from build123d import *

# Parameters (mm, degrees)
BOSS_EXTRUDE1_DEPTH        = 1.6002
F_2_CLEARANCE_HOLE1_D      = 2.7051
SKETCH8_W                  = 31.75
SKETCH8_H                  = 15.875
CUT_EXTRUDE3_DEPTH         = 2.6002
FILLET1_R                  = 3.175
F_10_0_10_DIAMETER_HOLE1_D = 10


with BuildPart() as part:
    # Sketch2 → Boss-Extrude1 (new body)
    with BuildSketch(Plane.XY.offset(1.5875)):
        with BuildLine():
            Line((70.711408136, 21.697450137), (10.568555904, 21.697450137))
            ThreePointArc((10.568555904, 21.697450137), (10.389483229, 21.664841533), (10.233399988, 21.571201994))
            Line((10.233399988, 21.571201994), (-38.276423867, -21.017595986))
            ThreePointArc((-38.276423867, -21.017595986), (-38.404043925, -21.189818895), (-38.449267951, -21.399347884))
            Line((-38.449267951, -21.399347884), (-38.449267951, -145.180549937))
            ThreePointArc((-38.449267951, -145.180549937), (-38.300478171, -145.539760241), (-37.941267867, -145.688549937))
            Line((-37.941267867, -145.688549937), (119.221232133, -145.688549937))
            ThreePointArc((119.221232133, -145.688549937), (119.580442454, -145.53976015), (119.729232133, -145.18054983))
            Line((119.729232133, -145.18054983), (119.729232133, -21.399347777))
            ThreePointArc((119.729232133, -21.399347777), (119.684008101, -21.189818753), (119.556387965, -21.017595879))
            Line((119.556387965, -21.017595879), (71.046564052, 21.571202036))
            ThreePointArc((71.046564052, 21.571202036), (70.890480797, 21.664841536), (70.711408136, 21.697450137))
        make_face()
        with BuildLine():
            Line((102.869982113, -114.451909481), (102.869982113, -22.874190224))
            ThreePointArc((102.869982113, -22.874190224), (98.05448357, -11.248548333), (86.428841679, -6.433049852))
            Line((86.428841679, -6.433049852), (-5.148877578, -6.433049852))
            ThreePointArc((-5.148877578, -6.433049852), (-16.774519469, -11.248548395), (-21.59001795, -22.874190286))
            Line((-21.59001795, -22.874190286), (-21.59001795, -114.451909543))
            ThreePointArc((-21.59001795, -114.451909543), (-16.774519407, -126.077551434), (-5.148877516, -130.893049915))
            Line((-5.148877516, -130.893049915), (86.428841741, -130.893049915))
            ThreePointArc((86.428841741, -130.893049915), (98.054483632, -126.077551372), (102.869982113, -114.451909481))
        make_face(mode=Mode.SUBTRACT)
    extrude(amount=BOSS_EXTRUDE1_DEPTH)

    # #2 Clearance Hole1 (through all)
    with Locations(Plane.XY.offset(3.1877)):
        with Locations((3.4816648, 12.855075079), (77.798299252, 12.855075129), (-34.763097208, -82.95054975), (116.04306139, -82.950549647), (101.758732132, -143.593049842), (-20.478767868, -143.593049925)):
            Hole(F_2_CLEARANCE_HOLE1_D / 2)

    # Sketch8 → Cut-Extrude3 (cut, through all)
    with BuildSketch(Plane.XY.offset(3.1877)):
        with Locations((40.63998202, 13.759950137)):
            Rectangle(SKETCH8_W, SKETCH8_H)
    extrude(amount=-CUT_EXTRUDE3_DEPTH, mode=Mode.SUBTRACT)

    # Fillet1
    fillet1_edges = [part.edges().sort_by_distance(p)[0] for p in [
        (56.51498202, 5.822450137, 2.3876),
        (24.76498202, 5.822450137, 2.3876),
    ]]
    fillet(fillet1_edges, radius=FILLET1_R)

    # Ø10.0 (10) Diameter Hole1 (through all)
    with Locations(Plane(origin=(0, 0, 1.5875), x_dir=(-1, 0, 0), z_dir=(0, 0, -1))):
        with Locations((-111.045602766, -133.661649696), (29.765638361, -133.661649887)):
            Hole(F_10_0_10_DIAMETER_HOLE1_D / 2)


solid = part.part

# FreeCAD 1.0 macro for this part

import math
import FreeCAD as App
import Part
import Sketcher

V = App.Vector
Q = App.Units.Quantity


def edges_at(feature, points):
    """Names of the edges that pass closest to the given points."""
    edges = feature.Shape.Edges
    near = lambda p: min(range(len(edges)), key=lambda i: edges[i].distToShape(Part.Vertex(*p))[0])
    return sorted({f"Edge{near(p) + 1}" for p in points})


def add_polygon(sketch, points):
    """Adds a closed chain of lines whose ends are joined by coincident constraints."""
    first, n = sketch.GeometryCount, len(points)
    for a, b in zip(points, points[1:] + points[:1]):
        sketch.addGeometry(Part.LineSegment(App.Vector(*a, 0), App.Vector(*b, 0)), False)
    for i in range(n):
        sketch.addConstraint(Sketcher.Constraint("Coincident", first + i, 2, first + (i + 1) % n, 1))

doc = App.newDocument("Part")
params = doc.addObject("Spreadsheet::Sheet", "Params")
for row, (alias, value) in enumerate([
    ("sketch1_radius", "0.02 in"),
    ("sketch1_width", "6.1875 in"),
    ("pad1_length", "0.063 in"),
    ("hole_diameter", "0.1065 in"),
    ("sketch3_width", "1.25 in"),
    ("sketch3_height", "0.625 in"),
    ("fillet_radius", "0.125 in"),
    ("hole2_diameter", "10 mm"),
], start=1):
    params.set(f"A{row}", alias)
    params.set(f"B{row}", "=" + value)
    params.setAlias(f"B{row}", alias)

body = doc.addObject("PartDesign::Body", "Body")

sketch1 = body.newObject("Sketcher::SketchObject", "Sketch")
sketch1.AttachmentSupport = (doc.getObject("XY_Plane"), [""])
sketch1.MapMode = "FlatFace"
sketch1.AttachmentOffset = App.Placement(V(0, 0, 0.0625 * 25.4), App.Rotation())
sketch1.addGeometry([
    Part.LineSegment(V(70.71, 21.7, 0), V(10.57, 21.7, 0)),
    Part.ArcOfCircle(Part.Circle(V(10.57, 21.19, 0), V(0, 0, 1), 0.51), math.radians(90), math.radians(131)),
    Part.LineSegment(V(10.23, 21.57, 0), V(-38.28, -21.02, 0)),
    Part.ArcOfCircle(Part.Circle(V(-37.94, -21.4, 0), V(0, 0, 1), 0.51), math.radians(131), math.radians(180)),
    Part.LineSegment(V(-38.45, -21.4, 0), V(-38.45, -145.18, 0)),
    Part.ArcOfCircle(Part.Circle(V(-37.94, -145.18, 0), V(0, 0, 1), 0.51), math.radians(180), math.radians(270)),
    Part.LineSegment(V(-37.94, -145.69, 0), V(119.22, -145.69, 0)),
    Part.ArcOfCircle(Part.Circle(V(119.22, -145.18, 0), V(0, 0, 1), 0.51), math.radians(-90), math.radians(0)),
    Part.LineSegment(V(119.73, -145.18, 0), V(119.73, -21.4, 0)),
    Part.ArcOfCircle(Part.Circle(V(119.22, -21.4, 0), V(0, 0, 1), 0.51), math.radians(0), math.radians(49)),
    Part.LineSegment(V(119.56, -21.02, 0), V(71.05, 21.57, 0)),
    Part.ArcOfCircle(Part.Circle(V(70.71, 21.19, 0), V(0, 0, 1), 0.51), math.radians(49), math.radians(90)),
    Part.LineSegment(V(102.87, -22.87, 0), V(102.87, -114.45, 0)),
    Part.ArcOfCircle(Part.Circle(V(86.43, -114.45, 0), V(0, 0, 1), 16.44), math.radians(-90), math.radians(0)),
    Part.LineSegment(V(86.43, -130.89, 0), V(-5.15, -130.89, 0)),
    Part.ArcOfCircle(Part.Circle(V(-5.15, -114.45, 0), V(0, 0, 1), 16.44), math.radians(180), math.radians(270)),
    Part.LineSegment(V(-21.59, -114.45, 0), V(-21.59, -22.87, 0)),
    Part.ArcOfCircle(Part.Circle(V(-5.15, -22.87, 0), V(0, 0, 1), 16.44), math.radians(90), math.radians(180)),
    Part.LineSegment(V(-5.15, -6.43, 0), V(86.43, -6.43, 0)),
    Part.ArcOfCircle(Part.Circle(V(86.43, -22.87, 0), V(0, 0, 1), 16.44), math.radians(0), math.radians(90)),
], False)
sketch1.addConstraint([
    Sketcher.Constraint("Tangent", 0, 2, 1, 1),
    Sketcher.Constraint("Tangent", 1, 2, 2, 1),
    Sketcher.Constraint("Tangent", 2, 2, 3, 1),
    Sketcher.Constraint("Tangent", 3, 2, 4, 1),
    Sketcher.Constraint("Tangent", 4, 2, 5, 1),
    Sketcher.Constraint("Tangent", 5, 2, 6, 1),
    Sketcher.Constraint("Tangent", 6, 2, 7, 1),
    Sketcher.Constraint("Tangent", 7, 2, 8, 1),
    Sketcher.Constraint("Tangent", 8, 2, 9, 1),
    Sketcher.Constraint("Tangent", 9, 2, 10, 1),
    Sketcher.Constraint("Tangent", 10, 2, 11, 1),
    Sketcher.Constraint("Tangent", 11, 2, 0, 1),
    Sketcher.Constraint("Tangent", 12, 2, 13, 2),
    Sketcher.Constraint("Tangent", 13, 1, 14, 1),
    Sketcher.Constraint("Tangent", 14, 2, 15, 2),
    Sketcher.Constraint("Tangent", 15, 1, 16, 1),
    Sketcher.Constraint("Tangent", 16, 2, 17, 2),
    Sketcher.Constraint("Tangent", 17, 1, 18, 1),
    Sketcher.Constraint("Tangent", 18, 2, 19, 2),
    Sketcher.Constraint("Tangent", 19, 1, 12, 1),
    Sketcher.Constraint("Horizontal", 0),
    Sketcher.Constraint("Vertical", 4),
    Sketcher.Constraint("Horizontal", 6),
    Sketcher.Constraint("Vertical", 8),
    Sketcher.Constraint("Vertical", 12),
    Sketcher.Constraint("Horizontal", 14),
    Sketcher.Constraint("Vertical", 16),
    Sketcher.Constraint("Horizontal", 18),
    Sketcher.Constraint("Equal", 1, 3),
    Sketcher.Constraint("Equal", 3, 5),
    Sketcher.Constraint("Equal", 5, 7),
    Sketcher.Constraint("Equal", 7, 9),
    Sketcher.Constraint("Equal", 9, 11),
    Sketcher.Constraint("Equal", 13, 15),
    Sketcher.Constraint("Equal", 15, 17),
    Sketcher.Constraint("Equal", 17, 19),
    Sketcher.Constraint("Horizontal", 3, 3, 9, 3),
    Sketcher.Constraint("Horizontal", 2, 2, 9, 2),
    Sketcher.Constraint("Equal", 18, 12),
    Sketcher.Constraint("Radius", 1, Q("0.02 in")),
    Sketcher.Constraint("DistanceX", 6, 1, 6, 2, Q("6.1875 in")),
    Sketcher.Constraint("DistanceY", 5, 3, 1, 3, Q("6.55 in")),
    Sketcher.Constraint("Radius", 13, Q("16.44114 mm")),
    Sketcher.Constraint("DistanceY", 7, 3, 13, 1, Q("0.5625 in")),
    Sketcher.Constraint("DistanceY", 17, 1, 1, 3, Q("1.0875 in")),
    Sketcher.Constraint("DistanceX", -1, 1, 1, 2, Q("10.2334 mm")),
    Sketcher.Constraint("DistanceY", -1, 1, 1, 2, Q("21.571202 mm")),
    Sketcher.Constraint("DistanceY", 3, 3, 1, 3, Q("42.588798 mm")),
    Sketcher.Constraint("Distance", 2, Q("64.552372 mm")),
    Sketcher.Constraint("DistanceX", -1, 1, 13, 3, Q("86.428842 mm")),
])
sketch1.setExpression("Constraints[39]", "Params.sketch1_radius")
sketch1.setExpression("Constraints[40]", "Params.sketch1_width")
pad1 = body.newObject("PartDesign::Pad", "Pad")
pad1.Profile = sketch1
pad1.setExpression("Length", "Params.pad1_length")

sketch2 = body.newObject("Sketcher::SketchObject", "Sketch001")
sketch2.AttachmentSupport = (doc.getObject("XY_Plane"), [""])
sketch2.MapMode = "FlatFace"
sketch2.AttachmentOffset = App.Placement(V(0, 0, 0.1255 * 25.4), App.Rotation())
sketch2.addGeometry([
    Part.Circle(V(3.5, 12.9, 0), V(0, 0, 1), 1.4),
    Part.Circle(V(77.8, 12.9, 0), V(0, 0, 1), 1.4),
    Part.Circle(V(-34.8, -83, 0), V(0, 0, 1), 1.4),
    Part.Circle(V(116, -83, 0), V(0, 0, 1), 1.4),
    Part.Circle(V(101.8, -143.6, 0), V(0, 0, 1), 1.4),
    Part.Circle(V(-20.5, -143.6, 0), V(0, 0, 1), 1.4),
], False)
sketch2.addConstraint([
    Sketcher.Constraint("Equal", 0, 1),
    Sketcher.Constraint("Equal", 1, 2),
    Sketcher.Constraint("Equal", 2, 3),
    Sketcher.Constraint("Equal", 3, 4),
    Sketcher.Constraint("Equal", 4, 5),
    Sketcher.Constraint("Horizontal", 0, 3, 1, 3),
    Sketcher.Constraint("Horizontal", 2, 3, 3, 3),
    Sketcher.Constraint("Horizontal", 4, 3, 5, 3),
    Sketcher.Constraint("Diameter", 0, Q("0.1065 in")),
    Sketcher.Constraint("DistanceX", 5, 3, 4, 3, Q("4.8125 in")),
    Sketcher.Constraint("DistanceY", 4, 3, 3, 3, Q("2.3875 in")),
    Sketcher.Constraint("DistanceX", -1, 1, 1, 3, Q("77.798299 mm")),
    Sketcher.Constraint("DistanceY", 2, 3, -1, 1, Q("82.95055 mm")),
    Sketcher.Constraint("DistanceX", -1, 1, 3, 3, Q("116.043061 mm")),
    Sketcher.Constraint("DistanceX", 2, 3, 3, 3, Q("150.806159 mm")),
    Sketcher.Constraint("DistanceX", 4, 3, 3, 3, Q("14.284329 mm")),
    Sketcher.Constraint("DistanceX", -1, 1, 0, 3, Q("3.481665 mm")),
    Sketcher.Constraint("DistanceY", -1, 1, 0, 3, Q("12.855075 mm")),
])
doc.recompute()
hole = body.newObject("PartDesign::Hole", "Hole")
hole.Profile = sketch2
hole.ThreadType = "None"
hole.setExpression("Diameter", "Params.hole_diameter")
hole.DepthType = "ThroughAll"

sketch3 = body.newObject("Sketcher::SketchObject", "Sketch002")
sketch3.AttachmentSupport = (doc.getObject("XY_Plane"), [""])
sketch3.MapMode = "FlatFace"
sketch3.AttachmentOffset = App.Placement(V(0, 0, 0.1255 * 25.4), App.Rotation())
add_polygon(sketch3, [(25, 22), (25, 6), (57, 6), (57, 22)])
sketch3.addConstraint([
    Sketcher.Constraint("Vertical", 0),
    Sketcher.Constraint("Horizontal", 1),
    Sketcher.Constraint("Vertical", 2),
    Sketcher.Constraint("Horizontal", 3),
    Sketcher.Constraint("DistanceX", 1, 1, 1, 2, Q("1.25 in")),
    Sketcher.Constraint("DistanceY", 0, 2, 0, 1, Q("0.625 in")),
    Sketcher.Constraint("DistanceY", -1, 1, 0, 2, Q("5.82245 mm")),
    Sketcher.Constraint("DistanceX", -1, 1, 0, 2, Q("24.764982 mm")),
])
sketch3.setExpression("Constraints[8]", "Params.sketch3_width")
sketch3.setExpression("Constraints[9]", "Params.sketch3_height")
pocket1 = body.newObject("PartDesign::Pocket", "Pocket")
pocket1.Profile = sketch3
pocket1.Type = "ThroughAll"
doc.recompute()

fillet = body.newObject("PartDesign::Fillet", "Fillet")
fillet.Base = (pocket1, edges_at(pocket1, [(56.515, 5.822, 2.388), (24.765, 5.822, 2.388)]))
fillet.setExpression("Radius", "Params.fillet_radius")

sketch4 = body.newObject("Sketcher::SketchObject", "Sketch003")
sketch4.AttachmentSupport = (doc.getObject("XY_Plane"), [""])
sketch4.MapMode = "FlatFace"
sketch4.AttachmentOffset = App.Placement(V(0, 0, 0.0625 * 25.4), App.Rotation())
sketch4.addGeometry([
    Part.Circle(V(111, -134, 0), V(0, 0, 1), 5),
    Part.Circle(V(-30, -134, 0), V(0, 0, 1), 5),
], False)
sketch4.addConstraint([
    Sketcher.Constraint("Equal", 0, 1),
    Sketcher.Constraint("Horizontal", 0, 3, 1, 3),
    Sketcher.Constraint("Diameter", 0, Q("10 mm")),
    Sketcher.Constraint("DistanceY", 0, 3, -1, 1, Q("133.66165 mm")),
    Sketcher.Constraint("DistanceX", 1, 3, -1, 1, Q("29.765638 mm")),
    Sketcher.Constraint("DistanceX", 1, 3, 0, 3, Q("140.811241 mm")),
])
doc.recompute()
hole2 = body.newObject("PartDesign::Hole", "Hole001")
hole2.Profile = sketch4
hole2.ThreadType = "None"
hole2.setExpression("Diameter", "Params.hole2_diameter")
hole2.DepthType = "ThroughAll"
hole2.Reversed = True

doc.recompute()
